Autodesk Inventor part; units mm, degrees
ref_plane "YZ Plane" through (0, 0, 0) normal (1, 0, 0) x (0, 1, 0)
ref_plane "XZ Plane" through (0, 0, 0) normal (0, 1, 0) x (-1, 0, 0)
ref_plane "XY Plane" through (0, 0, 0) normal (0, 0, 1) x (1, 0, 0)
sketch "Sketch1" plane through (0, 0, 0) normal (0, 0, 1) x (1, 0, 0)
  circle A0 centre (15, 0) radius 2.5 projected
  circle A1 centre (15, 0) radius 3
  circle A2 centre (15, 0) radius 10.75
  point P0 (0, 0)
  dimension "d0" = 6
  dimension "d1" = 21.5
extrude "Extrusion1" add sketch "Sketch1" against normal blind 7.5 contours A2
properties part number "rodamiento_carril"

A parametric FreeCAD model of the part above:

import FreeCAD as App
import Part
import Sketcher
Q = App.Units.Quantity

doc = App.newDocument("Part")
body = doc.addObject("PartDesign::Body", "Body")

sketch1 = doc.addObject("Sketcher::SketchObject", "Sketch")
body.addObject(sketch1)
sketch1.AttachmentSupport = (doc.XY_Plane, [""])
sketch1.MapMode = "FlatFace"
sketch1.addGeometry(Part.Circle(App.Vector(15, 0, 0), App.Vector(0, 0, 1), 10.8), False)
sketch1.addGeometry(Part.Circle(App.Vector(15, 0, 0), App.Vector(0, 0, 1), 3), False)
sketch1.addConstraint(Sketcher.Constraint("Coincident", 1, 3, 0, 3))
sketch1.addConstraint(Sketcher.Constraint("PointOnObject", 0, 3, -1))
sketch1.addConstraint(Sketcher.Constraint("Diameter", 1, Q("6 mm")))
sketch1.addConstraint(Sketcher.Constraint("Diameter", 0, Q("21.5 mm")))
sketch1.addConstraint(Sketcher.Constraint("DistanceX", -1, 1, 0, 3, Q("15 mm")))
pad1 = doc.addObject("PartDesign::Pad", "Pad")
body.addObject(pad1)
pad1.Profile = sketch1
pad1.Length = 7.5
pad1.Reversed = True

doc.recompute()
